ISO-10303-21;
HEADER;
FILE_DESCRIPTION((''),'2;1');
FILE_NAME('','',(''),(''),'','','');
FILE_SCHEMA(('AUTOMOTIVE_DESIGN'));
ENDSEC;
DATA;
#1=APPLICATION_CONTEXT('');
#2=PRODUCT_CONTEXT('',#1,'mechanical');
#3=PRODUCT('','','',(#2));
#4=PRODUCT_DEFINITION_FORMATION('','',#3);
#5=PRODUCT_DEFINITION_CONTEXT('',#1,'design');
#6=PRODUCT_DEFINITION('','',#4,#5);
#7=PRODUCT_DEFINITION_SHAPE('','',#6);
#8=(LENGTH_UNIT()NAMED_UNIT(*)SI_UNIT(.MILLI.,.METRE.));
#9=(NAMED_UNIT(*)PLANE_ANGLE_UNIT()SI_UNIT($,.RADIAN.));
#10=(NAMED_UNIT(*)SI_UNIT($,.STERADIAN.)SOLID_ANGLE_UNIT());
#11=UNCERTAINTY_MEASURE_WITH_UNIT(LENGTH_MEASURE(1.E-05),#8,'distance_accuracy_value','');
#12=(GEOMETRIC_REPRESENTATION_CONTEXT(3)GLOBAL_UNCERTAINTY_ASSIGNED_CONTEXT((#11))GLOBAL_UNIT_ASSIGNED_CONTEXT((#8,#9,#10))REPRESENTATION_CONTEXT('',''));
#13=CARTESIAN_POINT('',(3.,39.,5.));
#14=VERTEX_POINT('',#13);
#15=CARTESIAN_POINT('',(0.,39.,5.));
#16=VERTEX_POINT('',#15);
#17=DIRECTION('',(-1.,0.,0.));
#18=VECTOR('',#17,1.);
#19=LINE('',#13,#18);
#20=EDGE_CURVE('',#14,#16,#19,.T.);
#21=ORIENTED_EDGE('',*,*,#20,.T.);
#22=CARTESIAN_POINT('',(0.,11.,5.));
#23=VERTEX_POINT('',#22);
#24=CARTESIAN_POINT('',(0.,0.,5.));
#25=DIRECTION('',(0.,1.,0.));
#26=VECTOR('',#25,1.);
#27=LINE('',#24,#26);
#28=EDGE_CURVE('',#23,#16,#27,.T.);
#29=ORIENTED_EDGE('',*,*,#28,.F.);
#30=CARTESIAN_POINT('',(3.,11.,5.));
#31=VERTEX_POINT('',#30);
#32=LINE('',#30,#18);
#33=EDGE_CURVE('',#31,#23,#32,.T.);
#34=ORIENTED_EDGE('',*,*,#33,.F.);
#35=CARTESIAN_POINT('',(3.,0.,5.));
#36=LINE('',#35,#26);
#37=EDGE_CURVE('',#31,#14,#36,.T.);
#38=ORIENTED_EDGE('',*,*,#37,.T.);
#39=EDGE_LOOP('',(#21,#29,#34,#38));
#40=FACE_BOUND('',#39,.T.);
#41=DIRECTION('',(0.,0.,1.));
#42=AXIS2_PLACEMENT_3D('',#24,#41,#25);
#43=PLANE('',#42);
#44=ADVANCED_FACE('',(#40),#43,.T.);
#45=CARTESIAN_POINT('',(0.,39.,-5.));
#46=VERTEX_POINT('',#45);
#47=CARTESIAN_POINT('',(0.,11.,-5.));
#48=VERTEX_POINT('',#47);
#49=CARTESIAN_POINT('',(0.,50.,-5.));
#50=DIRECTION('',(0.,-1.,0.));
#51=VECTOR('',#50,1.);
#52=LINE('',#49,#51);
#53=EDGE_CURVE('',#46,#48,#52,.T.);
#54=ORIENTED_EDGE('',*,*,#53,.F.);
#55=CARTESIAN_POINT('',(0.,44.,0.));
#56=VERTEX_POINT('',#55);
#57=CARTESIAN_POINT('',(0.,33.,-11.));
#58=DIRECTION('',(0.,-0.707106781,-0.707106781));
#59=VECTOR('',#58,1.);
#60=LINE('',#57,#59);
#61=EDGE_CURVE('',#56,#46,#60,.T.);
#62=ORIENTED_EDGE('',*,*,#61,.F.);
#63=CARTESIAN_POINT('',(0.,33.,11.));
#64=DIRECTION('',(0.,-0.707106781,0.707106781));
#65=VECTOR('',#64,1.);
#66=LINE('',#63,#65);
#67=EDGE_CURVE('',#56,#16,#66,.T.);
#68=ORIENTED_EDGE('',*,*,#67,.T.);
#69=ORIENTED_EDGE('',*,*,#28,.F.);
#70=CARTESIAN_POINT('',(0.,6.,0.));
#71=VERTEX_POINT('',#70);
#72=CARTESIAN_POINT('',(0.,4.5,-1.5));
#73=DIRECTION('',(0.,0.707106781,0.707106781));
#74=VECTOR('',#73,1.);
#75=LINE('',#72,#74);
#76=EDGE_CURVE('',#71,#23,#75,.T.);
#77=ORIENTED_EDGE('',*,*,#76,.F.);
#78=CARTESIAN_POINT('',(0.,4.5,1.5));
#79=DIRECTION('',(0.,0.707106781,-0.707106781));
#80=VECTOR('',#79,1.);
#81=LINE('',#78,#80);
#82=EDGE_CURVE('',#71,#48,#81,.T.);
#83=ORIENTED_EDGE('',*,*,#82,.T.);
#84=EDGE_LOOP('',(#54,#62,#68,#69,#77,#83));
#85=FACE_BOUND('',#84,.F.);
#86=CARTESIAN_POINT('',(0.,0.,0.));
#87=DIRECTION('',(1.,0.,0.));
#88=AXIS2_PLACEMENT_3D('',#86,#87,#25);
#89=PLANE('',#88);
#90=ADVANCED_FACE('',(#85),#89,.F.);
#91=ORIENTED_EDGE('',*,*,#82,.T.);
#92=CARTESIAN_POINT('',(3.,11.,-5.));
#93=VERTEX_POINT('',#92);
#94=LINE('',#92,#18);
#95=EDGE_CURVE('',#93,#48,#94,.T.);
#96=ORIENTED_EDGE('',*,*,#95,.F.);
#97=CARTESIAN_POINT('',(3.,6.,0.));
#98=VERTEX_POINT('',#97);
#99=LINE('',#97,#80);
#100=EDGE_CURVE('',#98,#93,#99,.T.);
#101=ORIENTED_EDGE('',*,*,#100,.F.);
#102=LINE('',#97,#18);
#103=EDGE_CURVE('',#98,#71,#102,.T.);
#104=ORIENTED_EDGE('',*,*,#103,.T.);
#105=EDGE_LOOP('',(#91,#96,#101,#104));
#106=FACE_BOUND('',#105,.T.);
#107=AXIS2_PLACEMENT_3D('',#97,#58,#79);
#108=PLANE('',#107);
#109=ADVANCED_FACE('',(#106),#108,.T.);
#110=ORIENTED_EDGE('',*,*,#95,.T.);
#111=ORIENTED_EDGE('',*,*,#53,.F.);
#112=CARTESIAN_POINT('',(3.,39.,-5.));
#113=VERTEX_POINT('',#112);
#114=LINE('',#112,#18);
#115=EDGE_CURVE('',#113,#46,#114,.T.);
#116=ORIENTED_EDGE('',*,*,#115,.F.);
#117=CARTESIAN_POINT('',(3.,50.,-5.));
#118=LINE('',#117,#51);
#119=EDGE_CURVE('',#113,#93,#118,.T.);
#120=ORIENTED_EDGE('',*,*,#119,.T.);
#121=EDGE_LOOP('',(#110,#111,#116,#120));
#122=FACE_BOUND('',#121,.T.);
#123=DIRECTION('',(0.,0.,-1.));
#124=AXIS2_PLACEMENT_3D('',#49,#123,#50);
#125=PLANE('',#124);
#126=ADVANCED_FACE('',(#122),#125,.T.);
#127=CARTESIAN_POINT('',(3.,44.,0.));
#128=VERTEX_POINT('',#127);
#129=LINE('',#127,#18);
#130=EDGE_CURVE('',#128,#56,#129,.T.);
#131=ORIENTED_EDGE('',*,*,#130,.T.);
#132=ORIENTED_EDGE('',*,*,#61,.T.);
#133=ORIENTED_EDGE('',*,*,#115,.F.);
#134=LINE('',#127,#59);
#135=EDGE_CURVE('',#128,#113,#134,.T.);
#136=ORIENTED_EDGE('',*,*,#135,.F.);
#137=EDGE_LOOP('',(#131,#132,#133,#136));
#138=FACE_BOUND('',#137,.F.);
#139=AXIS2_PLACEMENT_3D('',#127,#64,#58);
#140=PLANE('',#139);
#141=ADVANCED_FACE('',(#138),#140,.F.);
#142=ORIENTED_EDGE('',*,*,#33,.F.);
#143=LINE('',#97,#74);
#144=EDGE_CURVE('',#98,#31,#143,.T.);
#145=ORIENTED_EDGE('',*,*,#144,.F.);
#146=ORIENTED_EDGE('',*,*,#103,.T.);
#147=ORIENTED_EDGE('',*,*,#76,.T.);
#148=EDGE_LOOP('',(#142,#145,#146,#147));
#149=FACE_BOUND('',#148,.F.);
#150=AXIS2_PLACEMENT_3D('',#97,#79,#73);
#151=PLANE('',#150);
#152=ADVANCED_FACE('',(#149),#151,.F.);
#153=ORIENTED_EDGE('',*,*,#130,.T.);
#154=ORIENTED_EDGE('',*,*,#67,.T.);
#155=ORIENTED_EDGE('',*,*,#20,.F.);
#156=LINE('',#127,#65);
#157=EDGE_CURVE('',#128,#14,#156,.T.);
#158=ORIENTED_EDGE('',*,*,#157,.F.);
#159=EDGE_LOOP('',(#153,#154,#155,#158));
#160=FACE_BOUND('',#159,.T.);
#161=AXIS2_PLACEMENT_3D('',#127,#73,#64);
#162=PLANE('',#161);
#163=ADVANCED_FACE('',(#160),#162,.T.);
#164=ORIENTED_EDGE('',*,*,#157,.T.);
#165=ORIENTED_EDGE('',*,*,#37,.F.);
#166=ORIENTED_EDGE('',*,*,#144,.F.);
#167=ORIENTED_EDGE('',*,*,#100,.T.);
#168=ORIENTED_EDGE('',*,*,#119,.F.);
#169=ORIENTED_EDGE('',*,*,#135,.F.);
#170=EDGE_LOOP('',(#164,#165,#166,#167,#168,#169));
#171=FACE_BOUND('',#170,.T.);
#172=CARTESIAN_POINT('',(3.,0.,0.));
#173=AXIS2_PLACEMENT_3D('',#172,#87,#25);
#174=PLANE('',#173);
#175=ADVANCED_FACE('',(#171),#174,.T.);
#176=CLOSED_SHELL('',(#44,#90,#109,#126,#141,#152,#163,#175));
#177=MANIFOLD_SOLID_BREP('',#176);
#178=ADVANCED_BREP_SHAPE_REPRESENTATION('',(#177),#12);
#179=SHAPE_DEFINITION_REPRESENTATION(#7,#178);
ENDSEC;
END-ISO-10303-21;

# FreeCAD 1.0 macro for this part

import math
import FreeCAD as App
import Part
import Sketcher
Q = App.Units.Quantity

doc = App.newDocument("Part")
body = doc.addObject("PartDesign::Body", "Body")

# Sketch on YZ plane
sketch1 = body.newObject("Sketcher::SketchObject", "Sketch")
sketch1.AttachmentSupport = (doc.getObject("YZ_Plane"), [""])
sketch1.MapMode = "FlatFace"
sketch1.addGeometry([
    Part.LineSegment(App.Vector(50, 5, 0), App.Vector(0, 5, 0)),  # 0
    Part.ArcOfCircle(Part.Circle(App.Vector(0, 0, 0), App.Vector(0, 0, 1), 5), math.radians(90), math.radians(270)),  # 1
    Part.LineSegment(App.Vector(0, -5, 0), App.Vector(50, -5, 0)),  # 2
    Part.ArcOfCircle(Part.Circle(App.Vector(50, 0, 0), App.Vector(0, 0, 1), 5), math.radians(-90), math.radians(90)),  # 3
    Part.Circle(App.Vector(0, 0, 0), App.Vector(0, 0, 1), 3.1),  # 4
    Part.Circle(App.Vector(50, 0, 0), App.Vector(0, 0, 1), 3.1),  # 5
], False)
sketch1.addConstraint([
    Sketcher.Constraint("Tangent", 0, 2, 1, 1),
    Sketcher.Constraint("Tangent", 1, 2, 2, 1),
    Sketcher.Constraint("Tangent", 2, 2, 3, 1),
    Sketcher.Constraint("Tangent", 3, 2, 0, 1),
    Sketcher.Constraint("Horizontal", 0),
    Sketcher.Constraint("Horizontal", 2),
    Sketcher.Constraint("Coincident", 1, 3, -1, 1),
    Sketcher.Constraint("Coincident", 4, 3, -1, 1),
    Sketcher.Constraint("Coincident", 5, 3, 3, 3),
    Sketcher.Constraint("Equal", 4, 5),
    Sketcher.Constraint("Radius", 1, Q("5 mm")),
    Sketcher.Constraint("Diameter", 4, Q("6.2 mm")),
    Sketcher.Constraint("DistanceX", 0, 2, 0, 1, Q("50 mm")),
])
pad1 = body.newObject("PartDesign::Pad", "Pad")
pad1.Profile = sketch1
pad1.Length = 3

# Sketch on YZ plane
sketch2 = body.newObject("Sketcher::SketchObject", "Sketch001")
sketch2.AttachmentSupport = (doc.getObject("YZ_Plane"), [""])
sketch2.MapMode = "FlatFace"
sketch2.AttachmentOffset = App.Placement(App.Vector(0, 0, 3), App.Rotation())
sketch2.addGeometry([
    Part.LineSegment(App.Vector(50, 5, 0), App.Vector(39, 5, 0)),  # 0
    Part.LineSegment(App.Vector(39, 5, 0), App.Vector(44, 0, 0)),  # 1
    Part.LineSegment(App.Vector(44, 0, 0), App.Vector(39, -5, 0)),  # 2
    Part.LineSegment(App.Vector(39, -5, 0), App.Vector(50, -5, 0)),  # 3
    Part.ArcOfCircle(Part.Circle(App.Vector(50, 0, 0), App.Vector(0, 0, 1), 5), math.radians(-90), math.radians(90)),  # 4
    Part.LineSegment(App.Vector(6, 0, 0), App.Vector(11, 5, 0)),  # 5
    Part.LineSegment(App.Vector(11, 5, 0), App.Vector(0, 5, 0)),  # 6
    Part.ArcOfCircle(Part.Circle(App.Vector(0, 0, 0), App.Vector(0, 0, 1), 5), math.radians(90), math.radians(270)),  # 7
    Part.LineSegment(App.Vector(0, -5, 0), App.Vector(11, -5, 0)),  # 8
    Part.LineSegment(App.Vector(11, -5, 0), App.Vector(6, 0, 0)),  # 9
], False)
sketch2.addConstraint([
    Sketcher.Constraint("Coincident", 0, 2, 1, 1),
    Sketcher.Constraint("Coincident", 1, 2, 2, 1),
    Sketcher.Constraint("Coincident", 2, 2, 3, 1),
    Sketcher.Constraint("Tangent", 3, 2, 4, 1),
    Sketcher.Constraint("Tangent", 4, 2, 0, 1),
    Sketcher.Constraint("Coincident", 5, 2, 6, 1),
    Sketcher.Constraint("Tangent", 6, 2, 7, 1),
    Sketcher.Constraint("Tangent", 7, 2, 8, 1),
    Sketcher.Constraint("Coincident", 8, 2, 9, 1),
    Sketcher.Constraint("Coincident", 9, 2, 5, 1),
    Sketcher.Constraint("Horizontal", 0),
    Sketcher.Constraint("Horizontal", 3),
    Sketcher.Constraint("Horizontal", 6),
    Sketcher.Constraint("Horizontal", 8),
    Sketcher.Constraint("Coincident", 7, 3, -1, 1),
    Sketcher.Constraint("Equal", 4, 7),
    Sketcher.Constraint("Symmetric", 0, 2, 2, 2, -1),
    Sketcher.Constraint("PointOnObject", 1, 2, -1),
    Sketcher.Constraint("PointOnObject", 9, 2, -1),
    Sketcher.Constraint("Perpendicular", 1, 2),
    Sketcher.Constraint("Parallel", 2, 5),
    Sketcher.Constraint("Perpendicular", 5, 9),
    Sketcher.Constraint("Equal", 3, 6),
    Sketcher.Constraint("DistanceX", 0, 2, 0, 1, Q("11 mm")),
    Sketcher.Constraint("Radius", 4, Q("5 mm")),
    Sketcher.Constraint("DistanceX", -1, 1, 4, 3, Q("50 mm")),
])
pocket1 = body.newObject("PartDesign::Pocket", "Pocket")
pocket1.Profile = sketch2
pocket1.Length = 10

doc.recompute()
